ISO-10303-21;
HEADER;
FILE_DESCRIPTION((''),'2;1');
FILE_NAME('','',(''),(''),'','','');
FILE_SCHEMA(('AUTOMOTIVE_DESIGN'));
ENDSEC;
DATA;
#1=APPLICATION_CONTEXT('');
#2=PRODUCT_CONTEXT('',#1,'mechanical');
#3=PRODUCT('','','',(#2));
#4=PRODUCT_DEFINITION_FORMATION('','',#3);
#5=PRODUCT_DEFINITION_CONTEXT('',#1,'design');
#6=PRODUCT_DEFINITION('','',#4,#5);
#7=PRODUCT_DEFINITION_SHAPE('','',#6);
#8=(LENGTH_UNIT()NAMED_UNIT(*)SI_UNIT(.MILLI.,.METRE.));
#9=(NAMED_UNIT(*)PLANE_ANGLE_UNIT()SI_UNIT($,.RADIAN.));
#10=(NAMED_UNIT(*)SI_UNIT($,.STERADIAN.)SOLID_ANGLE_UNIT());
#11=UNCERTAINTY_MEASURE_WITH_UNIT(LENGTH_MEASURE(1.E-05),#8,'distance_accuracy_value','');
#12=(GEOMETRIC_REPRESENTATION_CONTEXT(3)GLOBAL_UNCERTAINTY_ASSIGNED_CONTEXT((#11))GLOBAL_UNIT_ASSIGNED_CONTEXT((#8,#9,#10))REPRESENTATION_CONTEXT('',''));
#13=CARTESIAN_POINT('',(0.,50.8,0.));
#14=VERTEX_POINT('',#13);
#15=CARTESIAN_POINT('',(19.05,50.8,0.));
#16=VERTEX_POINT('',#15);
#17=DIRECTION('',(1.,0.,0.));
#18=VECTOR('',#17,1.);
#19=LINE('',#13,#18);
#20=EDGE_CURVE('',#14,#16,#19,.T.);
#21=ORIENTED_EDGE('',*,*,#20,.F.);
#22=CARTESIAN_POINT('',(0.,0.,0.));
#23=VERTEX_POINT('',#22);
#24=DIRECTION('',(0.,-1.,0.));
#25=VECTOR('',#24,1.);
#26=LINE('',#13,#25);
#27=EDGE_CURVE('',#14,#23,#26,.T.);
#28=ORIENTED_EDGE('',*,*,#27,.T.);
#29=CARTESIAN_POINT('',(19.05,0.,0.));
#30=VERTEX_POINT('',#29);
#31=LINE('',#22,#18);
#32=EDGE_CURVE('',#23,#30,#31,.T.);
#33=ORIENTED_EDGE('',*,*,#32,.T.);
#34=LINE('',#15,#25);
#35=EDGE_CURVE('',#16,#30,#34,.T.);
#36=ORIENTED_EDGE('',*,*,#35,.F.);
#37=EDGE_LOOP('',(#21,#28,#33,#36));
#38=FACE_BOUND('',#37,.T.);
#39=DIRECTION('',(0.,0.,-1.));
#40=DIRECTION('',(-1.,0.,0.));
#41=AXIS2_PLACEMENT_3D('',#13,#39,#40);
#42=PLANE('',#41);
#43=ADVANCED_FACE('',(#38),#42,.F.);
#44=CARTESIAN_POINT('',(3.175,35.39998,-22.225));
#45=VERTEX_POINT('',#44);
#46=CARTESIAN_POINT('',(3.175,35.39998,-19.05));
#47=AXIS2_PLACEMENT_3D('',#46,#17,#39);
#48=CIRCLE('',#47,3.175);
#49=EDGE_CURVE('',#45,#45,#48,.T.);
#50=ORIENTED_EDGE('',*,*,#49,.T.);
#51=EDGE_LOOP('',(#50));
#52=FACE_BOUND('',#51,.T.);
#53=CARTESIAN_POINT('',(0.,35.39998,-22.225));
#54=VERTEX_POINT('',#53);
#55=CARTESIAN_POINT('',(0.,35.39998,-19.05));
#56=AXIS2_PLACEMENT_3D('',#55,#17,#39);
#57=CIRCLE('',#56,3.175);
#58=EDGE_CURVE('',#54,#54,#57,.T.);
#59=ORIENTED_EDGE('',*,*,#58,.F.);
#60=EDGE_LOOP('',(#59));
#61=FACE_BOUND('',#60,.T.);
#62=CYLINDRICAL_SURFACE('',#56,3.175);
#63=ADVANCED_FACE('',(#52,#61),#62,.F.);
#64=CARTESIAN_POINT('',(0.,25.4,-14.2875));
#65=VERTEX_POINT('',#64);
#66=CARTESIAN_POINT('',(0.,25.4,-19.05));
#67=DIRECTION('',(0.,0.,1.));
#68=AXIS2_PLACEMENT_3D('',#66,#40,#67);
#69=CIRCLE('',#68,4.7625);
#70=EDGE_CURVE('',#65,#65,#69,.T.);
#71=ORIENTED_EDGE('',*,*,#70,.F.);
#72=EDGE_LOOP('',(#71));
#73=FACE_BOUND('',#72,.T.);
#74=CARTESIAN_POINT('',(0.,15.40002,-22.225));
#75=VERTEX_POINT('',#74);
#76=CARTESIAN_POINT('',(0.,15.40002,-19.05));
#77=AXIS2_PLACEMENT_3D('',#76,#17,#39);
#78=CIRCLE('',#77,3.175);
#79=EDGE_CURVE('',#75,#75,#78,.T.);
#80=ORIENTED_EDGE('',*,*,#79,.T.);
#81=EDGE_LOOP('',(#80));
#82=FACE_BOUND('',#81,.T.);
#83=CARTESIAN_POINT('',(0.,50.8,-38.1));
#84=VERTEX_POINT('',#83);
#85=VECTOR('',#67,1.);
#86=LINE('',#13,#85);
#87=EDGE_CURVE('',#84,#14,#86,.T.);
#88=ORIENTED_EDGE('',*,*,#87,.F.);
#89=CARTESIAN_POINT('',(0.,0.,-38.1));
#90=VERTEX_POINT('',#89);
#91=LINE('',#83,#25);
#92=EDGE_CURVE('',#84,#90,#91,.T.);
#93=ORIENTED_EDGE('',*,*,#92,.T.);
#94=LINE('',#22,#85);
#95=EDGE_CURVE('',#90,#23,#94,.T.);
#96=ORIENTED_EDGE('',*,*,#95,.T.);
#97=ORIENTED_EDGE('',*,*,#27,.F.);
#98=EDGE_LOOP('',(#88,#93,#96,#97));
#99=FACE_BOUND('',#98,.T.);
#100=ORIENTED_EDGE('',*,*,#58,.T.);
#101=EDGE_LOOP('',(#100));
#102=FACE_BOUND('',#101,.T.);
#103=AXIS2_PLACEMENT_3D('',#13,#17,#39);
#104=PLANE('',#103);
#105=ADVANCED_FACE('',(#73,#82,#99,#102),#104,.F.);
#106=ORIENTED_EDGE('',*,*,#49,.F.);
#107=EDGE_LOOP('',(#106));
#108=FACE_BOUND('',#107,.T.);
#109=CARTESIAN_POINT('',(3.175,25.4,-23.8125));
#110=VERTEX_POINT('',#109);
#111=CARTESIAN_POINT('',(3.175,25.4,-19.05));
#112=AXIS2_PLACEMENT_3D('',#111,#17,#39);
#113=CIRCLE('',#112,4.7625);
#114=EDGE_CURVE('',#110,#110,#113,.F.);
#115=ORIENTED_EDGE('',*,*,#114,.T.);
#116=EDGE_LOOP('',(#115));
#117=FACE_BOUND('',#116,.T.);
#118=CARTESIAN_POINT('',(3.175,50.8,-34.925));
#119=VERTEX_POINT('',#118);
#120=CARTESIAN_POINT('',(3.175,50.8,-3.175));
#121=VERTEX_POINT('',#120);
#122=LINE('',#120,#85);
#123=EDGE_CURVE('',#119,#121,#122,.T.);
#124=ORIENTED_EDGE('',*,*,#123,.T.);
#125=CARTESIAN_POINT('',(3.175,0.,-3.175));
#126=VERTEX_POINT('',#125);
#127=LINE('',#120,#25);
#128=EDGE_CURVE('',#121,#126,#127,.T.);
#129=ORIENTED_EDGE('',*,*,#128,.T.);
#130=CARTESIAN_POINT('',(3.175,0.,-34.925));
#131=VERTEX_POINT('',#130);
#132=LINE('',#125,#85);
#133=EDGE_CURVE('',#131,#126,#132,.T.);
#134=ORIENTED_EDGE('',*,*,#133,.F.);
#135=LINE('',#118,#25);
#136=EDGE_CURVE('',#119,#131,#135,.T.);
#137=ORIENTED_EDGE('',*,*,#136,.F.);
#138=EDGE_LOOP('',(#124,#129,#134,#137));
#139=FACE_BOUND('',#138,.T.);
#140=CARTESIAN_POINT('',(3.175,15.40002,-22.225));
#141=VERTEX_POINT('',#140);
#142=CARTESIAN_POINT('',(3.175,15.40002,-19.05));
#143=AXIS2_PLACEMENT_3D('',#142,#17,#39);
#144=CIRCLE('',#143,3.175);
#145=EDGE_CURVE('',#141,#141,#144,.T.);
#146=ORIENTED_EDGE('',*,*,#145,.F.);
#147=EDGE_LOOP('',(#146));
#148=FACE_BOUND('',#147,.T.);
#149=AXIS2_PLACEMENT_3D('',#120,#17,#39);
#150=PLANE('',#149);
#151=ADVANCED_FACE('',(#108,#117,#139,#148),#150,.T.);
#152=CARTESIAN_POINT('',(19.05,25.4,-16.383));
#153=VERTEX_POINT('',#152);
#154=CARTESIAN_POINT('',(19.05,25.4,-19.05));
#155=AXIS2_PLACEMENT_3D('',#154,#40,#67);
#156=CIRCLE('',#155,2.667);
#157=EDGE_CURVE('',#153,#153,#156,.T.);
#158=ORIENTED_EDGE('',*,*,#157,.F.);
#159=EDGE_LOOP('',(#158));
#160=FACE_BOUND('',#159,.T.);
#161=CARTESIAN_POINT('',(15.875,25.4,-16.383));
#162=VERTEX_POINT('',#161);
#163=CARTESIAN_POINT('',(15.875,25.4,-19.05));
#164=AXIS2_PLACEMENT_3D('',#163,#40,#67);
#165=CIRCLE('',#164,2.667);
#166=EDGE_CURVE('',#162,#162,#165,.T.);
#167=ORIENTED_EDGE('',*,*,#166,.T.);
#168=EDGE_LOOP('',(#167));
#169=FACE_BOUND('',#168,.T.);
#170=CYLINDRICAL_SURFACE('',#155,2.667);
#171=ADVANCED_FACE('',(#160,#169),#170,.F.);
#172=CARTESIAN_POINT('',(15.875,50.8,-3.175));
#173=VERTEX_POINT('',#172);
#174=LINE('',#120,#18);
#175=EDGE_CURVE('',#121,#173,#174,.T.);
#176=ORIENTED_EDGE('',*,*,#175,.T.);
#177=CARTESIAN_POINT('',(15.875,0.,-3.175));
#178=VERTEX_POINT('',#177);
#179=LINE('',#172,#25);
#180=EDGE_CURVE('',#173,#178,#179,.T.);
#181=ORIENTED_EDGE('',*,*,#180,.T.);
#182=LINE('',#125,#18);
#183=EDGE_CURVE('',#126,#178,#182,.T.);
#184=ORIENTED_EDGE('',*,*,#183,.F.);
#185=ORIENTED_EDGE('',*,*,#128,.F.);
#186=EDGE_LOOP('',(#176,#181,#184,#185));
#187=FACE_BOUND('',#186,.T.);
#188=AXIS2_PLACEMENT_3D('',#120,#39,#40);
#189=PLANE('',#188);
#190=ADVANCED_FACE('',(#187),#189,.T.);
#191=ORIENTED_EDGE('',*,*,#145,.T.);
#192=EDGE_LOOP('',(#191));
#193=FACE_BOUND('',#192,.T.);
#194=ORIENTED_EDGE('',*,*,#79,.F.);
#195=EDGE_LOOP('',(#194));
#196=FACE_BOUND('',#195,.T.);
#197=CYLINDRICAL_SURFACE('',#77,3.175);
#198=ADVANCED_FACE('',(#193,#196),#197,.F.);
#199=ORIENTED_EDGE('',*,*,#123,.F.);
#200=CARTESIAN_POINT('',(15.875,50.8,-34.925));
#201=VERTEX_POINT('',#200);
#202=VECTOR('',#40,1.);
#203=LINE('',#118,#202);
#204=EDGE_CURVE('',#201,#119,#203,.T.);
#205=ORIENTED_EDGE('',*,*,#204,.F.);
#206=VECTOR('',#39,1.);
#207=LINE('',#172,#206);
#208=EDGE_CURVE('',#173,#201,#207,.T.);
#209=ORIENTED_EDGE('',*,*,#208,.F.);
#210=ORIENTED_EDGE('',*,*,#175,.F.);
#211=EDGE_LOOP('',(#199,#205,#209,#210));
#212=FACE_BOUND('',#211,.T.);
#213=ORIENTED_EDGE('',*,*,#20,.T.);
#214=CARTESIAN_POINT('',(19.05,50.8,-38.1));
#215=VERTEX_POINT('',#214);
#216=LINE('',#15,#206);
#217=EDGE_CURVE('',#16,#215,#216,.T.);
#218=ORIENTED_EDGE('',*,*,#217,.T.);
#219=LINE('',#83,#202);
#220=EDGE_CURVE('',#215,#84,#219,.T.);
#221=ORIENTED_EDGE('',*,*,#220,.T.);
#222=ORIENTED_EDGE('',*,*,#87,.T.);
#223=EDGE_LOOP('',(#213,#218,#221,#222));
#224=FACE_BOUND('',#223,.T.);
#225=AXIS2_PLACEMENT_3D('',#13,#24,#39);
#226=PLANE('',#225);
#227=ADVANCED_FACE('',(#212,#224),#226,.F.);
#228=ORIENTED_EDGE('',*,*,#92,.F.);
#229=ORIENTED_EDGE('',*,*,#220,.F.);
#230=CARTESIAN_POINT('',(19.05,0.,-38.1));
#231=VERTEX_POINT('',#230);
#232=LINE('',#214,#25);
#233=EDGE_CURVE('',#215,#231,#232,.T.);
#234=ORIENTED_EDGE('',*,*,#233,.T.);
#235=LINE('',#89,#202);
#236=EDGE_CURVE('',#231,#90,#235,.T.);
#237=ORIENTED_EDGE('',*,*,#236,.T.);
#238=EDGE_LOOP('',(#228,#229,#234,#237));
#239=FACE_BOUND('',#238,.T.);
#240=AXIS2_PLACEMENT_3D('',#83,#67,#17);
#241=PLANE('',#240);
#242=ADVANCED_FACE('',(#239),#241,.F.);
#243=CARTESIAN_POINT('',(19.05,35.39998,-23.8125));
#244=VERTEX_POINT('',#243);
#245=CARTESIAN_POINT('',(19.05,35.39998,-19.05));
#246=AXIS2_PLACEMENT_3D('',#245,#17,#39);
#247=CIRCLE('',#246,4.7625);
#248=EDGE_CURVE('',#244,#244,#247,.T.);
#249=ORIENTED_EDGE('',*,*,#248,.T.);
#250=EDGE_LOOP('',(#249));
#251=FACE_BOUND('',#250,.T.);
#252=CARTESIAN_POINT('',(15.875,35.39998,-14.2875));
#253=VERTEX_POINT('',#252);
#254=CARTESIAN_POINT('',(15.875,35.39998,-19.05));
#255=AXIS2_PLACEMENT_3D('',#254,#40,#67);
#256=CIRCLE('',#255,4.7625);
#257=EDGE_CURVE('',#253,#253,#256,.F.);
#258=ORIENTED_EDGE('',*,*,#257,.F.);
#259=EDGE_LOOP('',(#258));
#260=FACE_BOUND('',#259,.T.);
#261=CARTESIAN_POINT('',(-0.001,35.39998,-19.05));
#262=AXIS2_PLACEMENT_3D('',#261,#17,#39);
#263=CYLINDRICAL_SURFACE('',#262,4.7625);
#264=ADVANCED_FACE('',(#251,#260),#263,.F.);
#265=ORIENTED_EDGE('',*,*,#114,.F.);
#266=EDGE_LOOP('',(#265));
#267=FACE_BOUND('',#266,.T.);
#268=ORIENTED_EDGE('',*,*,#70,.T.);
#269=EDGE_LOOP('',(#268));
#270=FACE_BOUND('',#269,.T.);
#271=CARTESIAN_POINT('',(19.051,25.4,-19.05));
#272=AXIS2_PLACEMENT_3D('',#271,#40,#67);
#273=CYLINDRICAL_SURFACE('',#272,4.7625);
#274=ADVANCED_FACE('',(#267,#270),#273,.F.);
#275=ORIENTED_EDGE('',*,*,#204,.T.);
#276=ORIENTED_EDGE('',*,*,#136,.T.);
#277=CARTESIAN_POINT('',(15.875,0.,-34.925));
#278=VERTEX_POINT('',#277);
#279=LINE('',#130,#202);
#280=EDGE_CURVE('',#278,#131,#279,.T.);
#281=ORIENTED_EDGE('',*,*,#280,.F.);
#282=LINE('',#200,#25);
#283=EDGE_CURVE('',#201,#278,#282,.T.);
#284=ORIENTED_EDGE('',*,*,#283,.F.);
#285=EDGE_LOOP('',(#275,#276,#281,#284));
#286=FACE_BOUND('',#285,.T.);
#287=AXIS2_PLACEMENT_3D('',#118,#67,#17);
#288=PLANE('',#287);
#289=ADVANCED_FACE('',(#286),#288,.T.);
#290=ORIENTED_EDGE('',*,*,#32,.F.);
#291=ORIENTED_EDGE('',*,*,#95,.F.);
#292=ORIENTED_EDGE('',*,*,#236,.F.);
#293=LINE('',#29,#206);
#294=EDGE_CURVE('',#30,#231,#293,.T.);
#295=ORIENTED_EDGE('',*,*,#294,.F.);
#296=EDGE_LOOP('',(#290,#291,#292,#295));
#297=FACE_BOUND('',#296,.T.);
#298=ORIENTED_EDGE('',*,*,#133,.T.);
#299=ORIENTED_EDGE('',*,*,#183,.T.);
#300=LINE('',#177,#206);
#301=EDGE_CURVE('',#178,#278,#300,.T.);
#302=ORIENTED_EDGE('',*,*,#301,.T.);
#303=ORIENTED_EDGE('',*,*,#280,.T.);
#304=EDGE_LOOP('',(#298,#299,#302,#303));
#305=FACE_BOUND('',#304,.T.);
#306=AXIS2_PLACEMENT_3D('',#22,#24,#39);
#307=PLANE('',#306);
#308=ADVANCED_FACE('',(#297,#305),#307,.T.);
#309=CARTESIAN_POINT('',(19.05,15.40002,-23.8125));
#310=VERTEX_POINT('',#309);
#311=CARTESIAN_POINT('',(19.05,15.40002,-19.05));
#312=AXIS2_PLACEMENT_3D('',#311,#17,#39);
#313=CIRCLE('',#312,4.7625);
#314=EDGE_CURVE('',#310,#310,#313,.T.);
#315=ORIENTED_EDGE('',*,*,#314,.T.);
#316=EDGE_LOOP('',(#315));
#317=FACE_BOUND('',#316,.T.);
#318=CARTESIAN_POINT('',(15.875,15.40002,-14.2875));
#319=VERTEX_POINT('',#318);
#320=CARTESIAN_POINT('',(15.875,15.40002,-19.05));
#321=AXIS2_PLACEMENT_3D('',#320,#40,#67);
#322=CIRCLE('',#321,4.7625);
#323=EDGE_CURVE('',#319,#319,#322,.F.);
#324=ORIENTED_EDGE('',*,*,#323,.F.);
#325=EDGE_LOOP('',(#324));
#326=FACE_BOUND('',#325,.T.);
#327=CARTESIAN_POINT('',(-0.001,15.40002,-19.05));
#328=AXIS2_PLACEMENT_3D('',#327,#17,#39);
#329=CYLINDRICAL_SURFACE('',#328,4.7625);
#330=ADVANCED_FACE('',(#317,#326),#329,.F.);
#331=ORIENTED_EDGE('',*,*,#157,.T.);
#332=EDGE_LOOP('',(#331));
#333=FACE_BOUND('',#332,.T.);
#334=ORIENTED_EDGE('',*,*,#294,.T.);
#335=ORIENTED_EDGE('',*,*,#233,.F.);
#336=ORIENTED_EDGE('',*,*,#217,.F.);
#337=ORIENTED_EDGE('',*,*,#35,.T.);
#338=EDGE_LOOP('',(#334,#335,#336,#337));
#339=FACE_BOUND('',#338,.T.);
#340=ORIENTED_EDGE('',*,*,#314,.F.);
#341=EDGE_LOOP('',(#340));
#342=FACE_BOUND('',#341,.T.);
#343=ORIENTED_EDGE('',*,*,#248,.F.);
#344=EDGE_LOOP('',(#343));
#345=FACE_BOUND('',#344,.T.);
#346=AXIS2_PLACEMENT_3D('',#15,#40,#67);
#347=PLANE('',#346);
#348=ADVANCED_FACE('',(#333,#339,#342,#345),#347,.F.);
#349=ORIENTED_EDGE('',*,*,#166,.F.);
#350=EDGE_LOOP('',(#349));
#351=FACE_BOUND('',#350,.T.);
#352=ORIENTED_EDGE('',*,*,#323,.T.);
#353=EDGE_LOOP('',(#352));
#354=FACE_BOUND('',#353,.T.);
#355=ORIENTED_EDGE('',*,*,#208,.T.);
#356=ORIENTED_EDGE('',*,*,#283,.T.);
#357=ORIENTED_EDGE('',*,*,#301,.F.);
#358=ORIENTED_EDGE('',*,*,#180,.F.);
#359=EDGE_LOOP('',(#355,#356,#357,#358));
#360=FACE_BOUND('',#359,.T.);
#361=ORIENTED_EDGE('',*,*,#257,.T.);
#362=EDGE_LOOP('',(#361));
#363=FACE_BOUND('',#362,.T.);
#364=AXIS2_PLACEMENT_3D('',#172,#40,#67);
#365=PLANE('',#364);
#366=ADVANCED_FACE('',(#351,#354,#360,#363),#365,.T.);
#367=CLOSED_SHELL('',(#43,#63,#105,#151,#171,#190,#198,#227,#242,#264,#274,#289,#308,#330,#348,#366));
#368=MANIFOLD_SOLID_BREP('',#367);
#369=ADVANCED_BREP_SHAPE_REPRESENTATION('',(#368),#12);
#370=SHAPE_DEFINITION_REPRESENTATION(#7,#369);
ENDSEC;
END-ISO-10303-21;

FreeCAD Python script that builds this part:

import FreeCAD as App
import Part
import Sketcher
from FreeCAD import Vector
Q = App.Units.Quantity

doc = App.newDocument("Part")
body = doc.addObject("PartDesign::Body", "Body")

# Sketch on XZ plane
sketch1 = body.newObject("Sketcher::SketchObject", "Sketch")
sketch1.AttachmentSupport = (doc.getObject("XZ_Plane"), [""])
sketch1.MapMode = "FlatFace"
sketch1.addGeometry(Part.LineSegment(Vector(0, -38, 0), Vector(0, 0, 0)), False)
sketch1.addGeometry(Part.LineSegment(Vector(0, 0, 0), Vector(19, 0, 0)), False)
sketch1.addGeometry(Part.LineSegment(Vector(19, 0, 0), Vector(19, -38, 0)), False)
sketch1.addGeometry(Part.LineSegment(Vector(19, -38, 0), Vector(0, -38, 0)), False)
sketch1.addGeometry(Part.LineSegment(Vector(16, -3, 0), Vector(3, -3, 0)), False)
sketch1.addGeometry(Part.LineSegment(Vector(3, -3, 0), Vector(3, -35, 0)), False)
sketch1.addGeometry(Part.LineSegment(Vector(3, -35, 0), Vector(16, -35, 0)), False)
sketch1.addGeometry(Part.LineSegment(Vector(16, -35, 0), Vector(16, -3, 0)), False)
sketch1.addConstraint(Sketcher.Constraint("Coincident", 0, 2, 1, 1))
sketch1.addConstraint(Sketcher.Constraint("Coincident", 1, 2, 2, 1))
sketch1.addConstraint(Sketcher.Constraint("Coincident", 2, 2, 3, 1))
sketch1.addConstraint(Sketcher.Constraint("Coincident", 3, 2, 0, 1))
sketch1.addConstraint(Sketcher.Constraint("Coincident", 4, 2, 5, 1))
sketch1.addConstraint(Sketcher.Constraint("Coincident", 5, 2, 6, 1))
sketch1.addConstraint(Sketcher.Constraint("Coincident", 6, 2, 7, 1))
sketch1.addConstraint(Sketcher.Constraint("Coincident", 7, 2, 4, 1))
sketch1.addConstraint(Sketcher.Constraint("Vertical", 0))
sketch1.addConstraint(Sketcher.Constraint("Horizontal", 1))
sketch1.addConstraint(Sketcher.Constraint("Vertical", 2))
sketch1.addConstraint(Sketcher.Constraint("Horizontal", 3))
sketch1.addConstraint(Sketcher.Constraint("Horizontal", 4))
sketch1.addConstraint(Sketcher.Constraint("Vertical", 5))
sketch1.addConstraint(Sketcher.Constraint("Horizontal", 6))
sketch1.addConstraint(Sketcher.Constraint("Vertical", 7))
sketch1.addConstraint(Sketcher.Constraint("Coincident", 0, 2, -1, 1))
sketch1.addConstraint(Sketcher.Constraint("DistanceX", 4, 2, 4, 1, Q("0.5 in")))
sketch1.addConstraint(Sketcher.Constraint("DistanceY", 0, 1, 0, 2, Q("1.5 in")))
sketch1.addConstraint(Sketcher.Constraint("DistanceX", 1, 1, 1, 2, Q("0.75 in")))
sketch1.addConstraint(Sketcher.Constraint("DistanceY", 5, 2, 5, 1, Q("1.25 in")))
sketch1.addConstraint(Sketcher.Constraint("DistanceX", -1, 1, 4, 2, Q("0.125 in")))
sketch1.addConstraint(Sketcher.Constraint("DistanceY", 4, 2, -1, 1, Q("0.125 in")))
pad1 = body.newObject("PartDesign::Pad", "Pad")
pad1.Profile = sketch1
pad1.Length = Q("2 in")
pad1.Reversed = True

# Sketch on YZ plane
sketch2 = body.newObject("Sketcher::SketchObject", "Sketch001")
sketch2.AttachmentSupport = (doc.getObject("YZ_Plane"), [""])
sketch2.MapMode = "FlatFace"
sketch2.AttachmentOffset = App.Placement(Vector(0, 0, 0.75 * 25.4), App.Rotation())
sketch2.addGeometry(Part.Circle(Vector(15.4, -19.1, 0), Vector(0, 0, 1), 3.2), False)
sketch2.addGeometry(Part.Circle(Vector(35.4, -19.1, 0), Vector(0, 0, 1), 3.2), False)
sketch2.addConstraint(Sketcher.Constraint("Equal", 0, 1))
sketch2.addConstraint(Sketcher.Constraint("Horizontal", 0, 3, 1, 3))
sketch2.addConstraint(Sketcher.Constraint("Diameter", 0, Q("0.25 in")))
sketch2.addConstraint(Sketcher.Constraint("DistanceY", 0, 3, -1, 1, Q("0.75 in")))
sketch2.addConstraint(Sketcher.Constraint("DistanceX", -1, 1, 0, 3, Q("0.6063 in")))
sketch2.addConstraint(Sketcher.Constraint("DistanceX", -1, 1, 1, 3, Q("1.3937 in")))
pocket1 = body.newObject("PartDesign::Pocket", "Pocket")
pocket1.Profile = sketch2
pocket1.Type = "ThroughAll"

# Sketch on YZ plane
sketch3 = body.newObject("Sketcher::SketchObject", "Sketch002")
sketch3.AttachmentSupport = (doc.getObject("YZ_Plane"), [""])
sketch3.MapMode = "FlatFace"
sketch3.AttachmentOffset = App.Placement(Vector(0, 0, 0.75 * 25.4), App.Rotation())
sketch3.addGeometry(Part.Circle(Vector(15.4, -19.1, 0), Vector(0, 0, 1), 4.8), False)
sketch3.addConstraint(Sketcher.Constraint("Diameter", 0, Q("0.375 in")))
sketch3.addConstraint(Sketcher.Constraint("DistanceY", 0, 3, -1, 1, Q("0.75 in")))
sketch3.addConstraint(Sketcher.Constraint("DistanceX", -1, 1, 0, 3, Q("0.6063 in")))
pocket2 = body.newObject("PartDesign::Pocket", "Pocket001")
pocket2.Profile = sketch3
pocket2.Length = Q("0.125 in")

# Sketch on YZ plane
sketch4 = body.newObject("Sketcher::SketchObject", "Sketch003")
sketch4.AttachmentSupport = (doc.getObject("YZ_Plane"), [""])
sketch4.MapMode = "FlatFace"
sketch4.AttachmentOffset = App.Placement(Vector(0, 0, 0.75 * 25.4), App.Rotation())
sketch4.addGeometry(Part.Circle(Vector(35.4, -19.1, 0), Vector(0, 0, 1), 4.8), False)
sketch4.addConstraint(Sketcher.Constraint("Diameter", 0, Q("0.375 in")))
sketch4.addConstraint(Sketcher.Constraint("DistanceY", 0, 3, -1, 1, Q("0.75 in")))
sketch4.addConstraint(Sketcher.Constraint("DistanceX", -1, 1, 0, 3, Q("1.3937 in")))
pocket3 = body.newObject("PartDesign::Pocket", "Pocket002")
pocket3.Profile = sketch4
pocket3.Length = Q("0.125 in")

# Sketch on YZ plane
sketch5 = body.newObject("Sketcher::SketchObject", "Sketch004")
sketch5.AttachmentSupport = (doc.getObject("YZ_Plane"), [""])
sketch5.MapMode = "FlatFace"
sketch5.addGeometry(Part.Circle(Vector(25.4, -19.1, 0), Vector(0, 0, 1), 2.7), False)
sketch5.addConstraint(Sketcher.Constraint("Diameter", 0, Q("0.21 in")))
sketch5.addConstraint(Sketcher.Constraint("DistanceX", -1, 1, 0, 3, Q("1 in")))
sketch5.addConstraint(Sketcher.Constraint("DistanceY", 0, 3, -1, 1, Q("0.75 in")))
pocket4 = body.newObject("PartDesign::Pocket", "Pocket003")
pocket4.Profile = sketch5
pocket4.Type = "ThroughAll"
pocket4.Reversed = True

# Sketch on YZ plane
sketch6 = body.newObject("Sketcher::SketchObject", "Sketch005")
sketch6.AttachmentSupport = (doc.getObject("YZ_Plane"), [""])
sketch6.MapMode = "FlatFace"
sketch6.addGeometry(Part.Circle(Vector(25.4, -19.1, 0), Vector(0, 0, 1), 4.8), False)
sketch6.addConstraint(Sketcher.Constraint("Diameter", 0, Q("0.375 in")))
sketch6.addConstraint(Sketcher.Constraint("DistanceX", -1, 1, 0, 3, Q("1 in")))
sketch6.addConstraint(Sketcher.Constraint("DistanceY", 0, 3, -1, 1, Q("0.75 in")))
pocket5 = body.newObject("PartDesign::Pocket", "Pocket004")
pocket5.Profile = sketch6
pocket5.Length = Q("0.125 in")
pocket5.Reversed = True

doc.recompute()
